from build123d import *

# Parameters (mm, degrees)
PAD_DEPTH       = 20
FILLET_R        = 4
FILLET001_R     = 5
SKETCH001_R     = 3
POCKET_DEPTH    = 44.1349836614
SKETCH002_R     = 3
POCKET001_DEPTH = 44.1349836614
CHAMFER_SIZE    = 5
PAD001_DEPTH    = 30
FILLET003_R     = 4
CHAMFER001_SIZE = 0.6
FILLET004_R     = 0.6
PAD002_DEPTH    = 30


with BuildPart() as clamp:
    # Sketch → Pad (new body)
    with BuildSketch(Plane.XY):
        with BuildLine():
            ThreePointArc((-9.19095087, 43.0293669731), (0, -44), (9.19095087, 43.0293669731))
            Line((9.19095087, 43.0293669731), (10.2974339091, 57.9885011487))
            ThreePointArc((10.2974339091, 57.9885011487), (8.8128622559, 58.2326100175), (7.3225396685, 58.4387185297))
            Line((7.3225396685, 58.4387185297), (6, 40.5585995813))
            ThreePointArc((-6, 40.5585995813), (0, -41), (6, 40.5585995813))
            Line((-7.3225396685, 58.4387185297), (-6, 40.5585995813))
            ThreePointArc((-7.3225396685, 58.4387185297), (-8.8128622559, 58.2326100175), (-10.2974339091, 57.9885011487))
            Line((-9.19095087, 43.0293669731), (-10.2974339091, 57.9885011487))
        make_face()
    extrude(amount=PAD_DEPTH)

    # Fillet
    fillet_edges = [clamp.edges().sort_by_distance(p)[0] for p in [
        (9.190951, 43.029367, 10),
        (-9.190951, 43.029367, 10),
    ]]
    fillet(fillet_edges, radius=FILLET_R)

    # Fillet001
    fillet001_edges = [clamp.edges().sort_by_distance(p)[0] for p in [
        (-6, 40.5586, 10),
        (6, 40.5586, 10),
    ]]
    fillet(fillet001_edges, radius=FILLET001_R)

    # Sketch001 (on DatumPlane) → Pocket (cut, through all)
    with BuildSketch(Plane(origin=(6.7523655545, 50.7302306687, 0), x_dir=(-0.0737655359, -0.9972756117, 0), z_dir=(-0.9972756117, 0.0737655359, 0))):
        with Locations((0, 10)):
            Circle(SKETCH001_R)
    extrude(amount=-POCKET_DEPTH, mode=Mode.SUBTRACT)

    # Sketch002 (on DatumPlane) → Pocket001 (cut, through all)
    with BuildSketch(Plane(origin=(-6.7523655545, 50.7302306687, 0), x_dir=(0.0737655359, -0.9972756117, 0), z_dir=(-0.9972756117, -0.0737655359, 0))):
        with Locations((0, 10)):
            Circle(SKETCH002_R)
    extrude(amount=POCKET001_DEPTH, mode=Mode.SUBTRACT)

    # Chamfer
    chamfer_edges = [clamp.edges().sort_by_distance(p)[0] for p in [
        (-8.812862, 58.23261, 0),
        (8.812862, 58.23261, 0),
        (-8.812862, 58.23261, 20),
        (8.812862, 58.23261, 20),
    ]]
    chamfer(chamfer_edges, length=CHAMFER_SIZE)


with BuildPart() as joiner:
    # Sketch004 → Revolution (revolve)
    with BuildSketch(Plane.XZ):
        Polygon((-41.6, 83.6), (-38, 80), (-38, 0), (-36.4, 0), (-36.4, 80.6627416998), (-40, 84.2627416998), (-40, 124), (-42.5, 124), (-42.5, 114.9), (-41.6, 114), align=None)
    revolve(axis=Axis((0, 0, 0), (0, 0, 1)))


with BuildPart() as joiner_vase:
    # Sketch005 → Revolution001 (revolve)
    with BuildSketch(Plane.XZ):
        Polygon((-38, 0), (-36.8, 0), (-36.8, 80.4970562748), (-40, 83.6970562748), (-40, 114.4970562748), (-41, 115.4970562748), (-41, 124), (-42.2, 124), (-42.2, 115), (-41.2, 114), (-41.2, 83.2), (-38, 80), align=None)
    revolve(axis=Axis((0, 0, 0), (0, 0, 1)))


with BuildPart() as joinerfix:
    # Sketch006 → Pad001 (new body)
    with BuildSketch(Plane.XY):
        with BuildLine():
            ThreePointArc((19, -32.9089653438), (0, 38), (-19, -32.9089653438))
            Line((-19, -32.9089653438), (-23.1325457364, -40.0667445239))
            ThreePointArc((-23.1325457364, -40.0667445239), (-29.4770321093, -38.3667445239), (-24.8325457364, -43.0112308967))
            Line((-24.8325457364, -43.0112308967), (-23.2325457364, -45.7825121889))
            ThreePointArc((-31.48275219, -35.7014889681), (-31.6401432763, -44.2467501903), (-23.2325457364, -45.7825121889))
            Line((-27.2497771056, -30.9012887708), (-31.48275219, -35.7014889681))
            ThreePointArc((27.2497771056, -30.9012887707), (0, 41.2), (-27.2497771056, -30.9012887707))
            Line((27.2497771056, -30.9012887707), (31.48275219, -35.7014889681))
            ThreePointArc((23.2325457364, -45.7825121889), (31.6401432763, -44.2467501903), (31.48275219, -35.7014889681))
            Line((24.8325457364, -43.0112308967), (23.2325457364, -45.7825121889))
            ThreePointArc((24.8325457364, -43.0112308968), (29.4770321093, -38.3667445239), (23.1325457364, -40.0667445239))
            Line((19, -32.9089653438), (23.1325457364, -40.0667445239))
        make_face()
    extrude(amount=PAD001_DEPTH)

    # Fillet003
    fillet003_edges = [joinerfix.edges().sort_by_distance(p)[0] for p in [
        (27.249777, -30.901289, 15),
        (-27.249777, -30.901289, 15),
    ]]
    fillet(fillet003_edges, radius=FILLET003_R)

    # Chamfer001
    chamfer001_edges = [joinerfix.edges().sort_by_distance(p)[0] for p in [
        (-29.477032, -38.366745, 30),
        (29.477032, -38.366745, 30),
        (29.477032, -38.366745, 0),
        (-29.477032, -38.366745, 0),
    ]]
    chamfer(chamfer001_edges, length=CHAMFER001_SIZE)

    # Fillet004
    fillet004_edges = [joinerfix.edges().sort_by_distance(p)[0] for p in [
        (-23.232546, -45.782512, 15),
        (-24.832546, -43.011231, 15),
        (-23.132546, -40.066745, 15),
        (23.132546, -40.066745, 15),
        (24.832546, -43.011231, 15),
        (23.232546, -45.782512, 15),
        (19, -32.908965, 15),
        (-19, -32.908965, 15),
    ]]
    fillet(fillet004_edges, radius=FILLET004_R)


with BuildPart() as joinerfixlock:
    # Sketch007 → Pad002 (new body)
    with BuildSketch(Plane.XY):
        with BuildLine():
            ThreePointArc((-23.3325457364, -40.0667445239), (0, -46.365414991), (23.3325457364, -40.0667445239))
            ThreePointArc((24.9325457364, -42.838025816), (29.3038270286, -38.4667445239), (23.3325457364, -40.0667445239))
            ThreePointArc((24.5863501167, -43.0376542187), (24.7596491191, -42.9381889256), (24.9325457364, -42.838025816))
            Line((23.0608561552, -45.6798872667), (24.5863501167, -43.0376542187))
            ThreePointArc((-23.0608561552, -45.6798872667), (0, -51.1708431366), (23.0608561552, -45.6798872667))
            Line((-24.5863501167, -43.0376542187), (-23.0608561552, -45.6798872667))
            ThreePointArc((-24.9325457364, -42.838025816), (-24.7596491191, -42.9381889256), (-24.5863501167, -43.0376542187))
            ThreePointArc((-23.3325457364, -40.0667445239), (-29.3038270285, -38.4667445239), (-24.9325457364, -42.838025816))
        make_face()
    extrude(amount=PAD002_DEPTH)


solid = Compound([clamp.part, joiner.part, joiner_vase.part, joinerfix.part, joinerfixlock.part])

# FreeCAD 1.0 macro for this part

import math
import FreeCAD as App
import Part
import Sketcher
Q = App.Units.Quantity


def edges_at(feature, points):
    """Names of the edges that pass closest to the given points."""
    edges = feature.Shape.Edges
    near = lambda p: min(range(len(edges)), key=lambda i: edges[i].distToShape(Part.Vertex(*p))[0])
    return sorted({f"Edge{near(p) + 1}" for p in points})

doc = App.newDocument("Part")
body = doc.addObject("PartDesign::Body", "Body")

sketch1 = body.newObject("Sketcher::SketchObject", "Sketch")
sketch1.AttachmentSupport = (doc.getObject("XY_Plane"), [""])
sketch1.MapMode = "FlatFace"
sketch1.addGeometry([
    Part.ArcOfCircle(Part.Circle(App.Vector(0, 0, 0), App.Vector(0, 0, 1), 44), math.radians(102.057033), math.radians(437.942967)),
    Part.LineSegment(App.Vector(9.190951, 43.029367, 0), App.Vector(10.297434, 57.988501, 0)),
    Part.ArcOfCircle(Part.Circle(App.Vector(0, 0, 0), App.Vector(0, 0, 1), 58.895699), math.radians(79.930544), math.radians(82.857898)),
    Part.LineSegment(App.Vector(7.32254, 58.438719, 0), App.Vector(6, 40.5586, 0)),
    Part.ArcOfCircle(Part.Circle(App.Vector(0, 0, 0), App.Vector(0, 0, 1), 41), math.radians(98.414968), math.radians(441.585032)),
    Part.LineSegment(App.Vector(-6, 40.5586, 0), App.Vector(-7.32254, 58.438719, 0)),
    Part.ArcOfCircle(Part.Circle(App.Vector(0, 0, 0), App.Vector(0, 0, 1), 58.895699), math.radians(97.142102), math.radians(100.069456)),
    Part.LineSegment(App.Vector(-10.297434, 57.988501, 0), App.Vector(-9.190951, 43.029367, 0)),
], False)
sketch1.addConstraint([
    Sketcher.Constraint("Coincident", 0, 2, 1, 1),
    Sketcher.Constraint("Coincident", 1, 2, 2, 1),
    Sketcher.Constraint("Coincident", 2, 2, 3, 1),
    Sketcher.Constraint("Coincident", 3, 2, 4, 2),
    Sketcher.Constraint("Coincident", 4, 1, 5, 1),
    Sketcher.Constraint("Coincident", 5, 2, 6, 1),
    Sketcher.Constraint("Coincident", 6, 2, 7, 1),
    Sketcher.Constraint("Coincident", 7, 2, 0, 1),
    Sketcher.Constraint("Coincident", 0, 3, -1, 1),
    Sketcher.Constraint("Coincident", 2, 3, -1, 1),
    Sketcher.Constraint("Coincident", 4, 3, -1, 1),
    Sketcher.Constraint("Coincident", 6, 3, -1, 1),
    Sketcher.Constraint("Equal", 2, 6),
    Sketcher.Constraint("Parallel", 1, 3),
    Sketcher.Constraint("Parallel", 5, 7),
    Sketcher.Constraint("Horizontal", 3, 2, 4, 1),
    Sketcher.Constraint("Horizontal", 2, 2, 5, 2),
    Sketcher.Constraint("Horizontal", 1, 2, 6, 2),
    Sketcher.Constraint("Radius", 0, Q("44 mm")),
    Sketcher.Constraint("Radius", 4, Q("41 mm")),
    Sketcher.Constraint("Distance", 1, Q("15 mm")),
    Sketcher.Constraint("DistanceX", -1, 1, 3, 2, Q("6 mm")),
    Sketcher.Constraint("Radius", 2, Q("58.895699 mm")),
    Sketcher.Constraint("DistanceY", -1, 1, 1, 2, Q("57.988501 mm")),
])
pad1 = body.newObject("PartDesign::Pad", "Pad")
pad1.Profile = sketch1
pad1.Length = 20
doc.recompute()

fillet = body.newObject("PartDesign::Fillet", "Fillet")
fillet.Base = (pad1, edges_at(pad1, [(9.191, 43.029, 10), (-9.191, 43.029, 10)]))
fillet.Radius = 4
doc.recompute()

fillet2 = body.newObject("PartDesign::Fillet", "Fillet001")
fillet2.Base = (fillet, edges_at(fillet, [(-6, 40.559, 10), (6, 40.559, 10)]))
fillet2.Radius = 5

sketch2 = body.newObject("Sketcher::SketchObject", "Sketch001")
sketch2.Placement = App.Placement(App.Vector(6.752366, 50.730231, 0), App.Rotation(App.Vector(-0.073765536, -0.997275612, 0), App.Vector(0, 0, 1.000000001), App.Vector(-0.997275612, 0.073765536, 0), "ZXY"))
sketch2.addGeometry(Part.Circle(App.Vector(0, 10, 0), App.Vector(0, 0, 1), 3), False)
sketch2.addConstraint([
    Sketcher.Constraint("PointOnObject", 0, 3, -2),
    Sketcher.Constraint("Diameter", 0, Q("6 mm")),
    Sketcher.Constraint("DistanceY", -1, 1, 0, 3, Q("10 mm")),
])
pocket1 = body.newObject("PartDesign::Pocket", "Pocket")
pocket1.Profile = sketch2
pocket1.Type = "ThroughAll"

sketch3 = body.newObject("Sketcher::SketchObject", "Sketch002")
sketch3.Placement = App.Placement(App.Vector(-6.752366, 50.730231, 0), App.Rotation(App.Vector(0.073765536, -0.997275612, 0), App.Vector(0, 0, 1.000000001), App.Vector(-0.997275612, -0.073765536, 0), "ZXY"))
sketch3.addGeometry(Part.Circle(App.Vector(0, 10, 0), App.Vector(0, 0, 1), 3), False)
sketch3.addConstraint([
    Sketcher.Constraint("PointOnObject", 0, 3, -2),
    Sketcher.Constraint("Diameter", 0, Q("6 mm")),
    Sketcher.Constraint("DistanceY", -1, 1, 0, 3, Q("10 mm")),
])
pocket2 = body.newObject("PartDesign::Pocket", "Pocket001")
pocket2.Profile = sketch3
pocket2.Type = "ThroughAll"
pocket2.Reversed = True
doc.recompute()

chamfer = body.newObject("PartDesign::Chamfer", "Chamfer")
chamfer.Base = (pocket2, edges_at(pocket2, [
    (-8.813, 58.233, 0),
    (8.813, 58.233, 0),
    (-8.813, 58.233, 20),
    (8.813, 58.233, 20),
]))
chamfer.Size = 5
body2 = doc.addObject("PartDesign::Body", "Body001")

sketch4 = body2.newObject("Sketcher::SketchObject", "Sketch003")
sketch4.AttachmentSupport = (doc.getObject("XZ_Plane001"), [""])
sketch4.MapMode = "FlatFace"
sketch4.addGeometry([
    Part.LineSegment(App.Vector(-41.6, 83.6, 0), App.Vector(-38, 80, 0)),
    Part.LineSegment(App.Vector(-38, 80, 0), App.Vector(-38, 0, 0)),
    Part.LineSegment(App.Vector(-38, 0, 0), App.Vector(-36.4, 0, 0)),
    Part.LineSegment(App.Vector(-36.4, 0, 0), App.Vector(-36.4, 80.662742, 0)),
    Part.LineSegment(App.Vector(-36.4, 80.662742, 0), App.Vector(-40, 84.262742, 0)),
    Part.LineSegment(App.Vector(-40, 84.262742, 0), App.Vector(-40, 124, 0)),
    Part.LineSegment(App.Vector(-40, 124, 0), App.Vector(-42.5, 124, 0)),
    Part.LineSegment(App.Vector(-42.5, 124, 0), App.Vector(-42.5, 114.9, 0)),
    Part.LineSegment(App.Vector(-42.5, 114.9, 0), App.Vector(-41.6, 114, 0)),
    Part.LineSegment(App.Vector(-41.6, 114, 0), App.Vector(-41.6, 83.6, 0)),
], False)
sketch4.addConstraint([
    Sketcher.Constraint("Coincident", 0, 2, 1, 1),
    Sketcher.Constraint("Coincident", 1, 2, 2, 1),
    Sketcher.Constraint("Coincident", 2, 2, 3, 1),
    Sketcher.Constraint("Coincident", 3, 2, 4, 1),
    Sketcher.Constraint("Coincident", 4, 2, 5, 1),
    Sketcher.Constraint("Coincident", 5, 2, 6, 1),
    Sketcher.Constraint("Coincident", 6, 2, 7, 1),
    Sketcher.Constraint("Coincident", 7, 2, 8, 1),
    Sketcher.Constraint("Coincident", 8, 2, 9, 1),
    Sketcher.Constraint("Coincident", 9, 2, 0, 1),
    Sketcher.Constraint("Vertical", 1),
    Sketcher.Constraint("Horizontal", 2),
    Sketcher.Constraint("Vertical", 3),
    Sketcher.Constraint("Vertical", 5),
    Sketcher.Constraint("Horizontal", 6),
    Sketcher.Constraint("Vertical", 7),
    Sketcher.Constraint("Vertical", 9),
    Sketcher.Constraint("PointOnObject", 1, 2, -1),
    Sketcher.Constraint("Parallel", 0, 4),
    Sketcher.Constraint("Parallel", 4, 8),
    Sketcher.Constraint("Equal", 0, 4),
    Sketcher.Constraint("DistanceY", 1, 2, 1, 1, Q("80 mm")),
    Sketcher.Constraint("Angle", 0, Q("-45 deg")),
    Sketcher.Constraint("DistanceX", 2, 1, 2, 2, Q("1.6 mm")),
    Sketcher.Constraint("DistanceX", 6, 2, 6, 1, Q("2.5 mm")),
    Sketcher.Constraint("DistanceY", 7, 2, 7, 1, Q("9.1 mm")),
    Sketcher.Constraint("DistanceY", 9, 2, 9, 1, Q("30.4 mm")),
    Sketcher.Constraint("DistanceX", 0, 2, -1, 1, Q("38 mm")),
    Sketcher.Constraint("DistanceX", 4, 2, -1, 1, Q("40 mm")),
    Sketcher.Constraint("DistanceY", 3, 1, 3, 2, Q("80.662742 mm")),
])
revolution = body2.newObject("PartDesign::Revolution", "Revolution")
revolution.Profile = sketch4
revolution.ReferenceAxis = (sketch4, ["V_Axis"])
revolution.Angle = 360
body3 = doc.addObject("PartDesign::Body", "Body002")

sketch5 = body3.newObject("Sketcher::SketchObject", "Sketch004")
sketch5.AttachmentSupport = (doc.getObject("XZ_Plane002"), [""])
sketch5.MapMode = "FlatFace"
sketch5.addGeometry([
    Part.LineSegment(App.Vector(-38, 0, 0), App.Vector(-36.8, 0, 0)),
    Part.LineSegment(App.Vector(-36.8, 0, 0), App.Vector(-36.8, 80.497056, 0)),
    Part.LineSegment(App.Vector(-36.8, 80.497056, 0), App.Vector(-40, 83.697056, 0)),
    Part.LineSegment(App.Vector(-40, 83.697056, 0), App.Vector(-40, 114.497056, 0)),
    Part.LineSegment(App.Vector(-40, 114.497056, 0), App.Vector(-41, 115.497056, 0)),
    Part.LineSegment(App.Vector(-41, 115.497056, 0), App.Vector(-41, 124, 0)),
    Part.LineSegment(App.Vector(-41, 124, 0), App.Vector(-42.2, 124, 0)),
    Part.LineSegment(App.Vector(-42.2, 124, 0), App.Vector(-42.2, 115, 0)),
    Part.LineSegment(App.Vector(-42.2, 115, 0), App.Vector(-41.2, 114, 0)),
    Part.LineSegment(App.Vector(-41.2, 114, 0), App.Vector(-41.2, 83.2, 0)),
    Part.LineSegment(App.Vector(-41.2, 83.2, 0), App.Vector(-38, 80, 0)),
    Part.LineSegment(App.Vector(-38, 80, 0), App.Vector(-38, 0, 0)),
], False)
sketch5.addConstraint([
    Sketcher.Constraint("Coincident", 0, 2, 1, 1),
    Sketcher.Constraint("Coincident", 1, 2, 2, 1),
    Sketcher.Constraint("Coincident", 2, 2, 3, 1),
    Sketcher.Constraint("Coincident", 3, 2, 4, 1),
    Sketcher.Constraint("Coincident", 4, 2, 5, 1),
    Sketcher.Constraint("Coincident", 5, 2, 6, 1),
    Sketcher.Constraint("Coincident", 6, 2, 7, 1),
    Sketcher.Constraint("Coincident", 7, 2, 8, 1),
    Sketcher.Constraint("Coincident", 8, 2, 9, 1),
    Sketcher.Constraint("Coincident", 9, 2, 10, 1),
    Sketcher.Constraint("Coincident", 10, 2, 11, 1),
    Sketcher.Constraint("Coincident", 11, 2, 0, 1),
    Sketcher.Constraint("Horizontal", 0),
    Sketcher.Constraint("Vertical", 1),
    Sketcher.Constraint("Vertical", 3),
    Sketcher.Constraint("Vertical", 5),
    Sketcher.Constraint("Horizontal", 6),
    Sketcher.Constraint("Vertical", 7),
    Sketcher.Constraint("Vertical", 9),
    Sketcher.Constraint("Vertical", 11),
    Sketcher.Constraint("PointOnObject", 0, 2, -1),
    Sketcher.Constraint("Parallel", 2, 4),
    Sketcher.Constraint("Parallel", 4, 8),
    Sketcher.Constraint("Parallel", 8, 10),
    Sketcher.Constraint("Equal", 0, 6),
    Sketcher.Constraint("Equal", 3, 9),
    Sketcher.Constraint("Equal", 4, 8),
    Sketcher.Constraint("DistanceY", 7, 2, 7, 1, Q("9 mm")),
    Sketcher.Constraint("DistanceY", 11, 2, 11, 1, Q("80 mm")),
    Sketcher.Constraint("Angle", 2, Q("135 deg")),
    Sketcher.Constraint("DistanceX", 0, 1, 0, 2, Q("1.2 mm")),
    Sketcher.Constraint("DistanceY", 3, 1, 3, 2, Q("30.8 mm")),
    Sketcher.Constraint("DistanceX", 2, 2, -1, 1, Q("40 mm")),
    Sketcher.Constraint("DistanceX", 4, 2, -1, 1, Q("41 mm")),
    Sketcher.Constraint("DistanceY", -1, 1, 5, 2, Q("124 mm")),
    Sketcher.Constraint("DistanceY", 1, 1, 1, 2, Q("80.497056 mm")),
])
revolution2 = body3.newObject("PartDesign::Revolution", "Revolution001")
revolution2.Profile = sketch5
revolution2.ReferenceAxis = (sketch5, ["V_Axis"])
revolution2.Angle = 360
body4 = doc.addObject("PartDesign::Body", "Body003")

sketch6 = body4.newObject("Sketcher::SketchObject", "Sketch005")
sketch6.AttachmentSupport = (doc.getObject("XY_Plane003"), [""])
sketch6.MapMode = "FlatFace"
sketch6.addGeometry([
    Part.ArcOfCircle(Part.Circle(App.Vector(0, 0, 0), App.Vector(0, 0, 1), 38), math.radians(-60), math.radians(240)),
    Part.LineSegment(App.Vector(19, -32.908965, 0), App.Vector(23.132546, -40.066745, 0)),
    Part.ArcOfCircle(Part.Circle(App.Vector(26.532546, -40.066745, 0), App.Vector(0, 0, 1), 3.4), math.radians(-120), math.radians(180)),
    Part.LineSegment(App.Vector(24.832546, -43.011231, 0), App.Vector(23.232546, -45.782512, 0)),
    Part.ArcOfCircle(Part.Circle(App.Vector(26.532546, -40.066745, 0), App.Vector(0, 0, 1), 6.6), math.radians(-120), math.radians(41.406912)),
    Part.LineSegment(App.Vector(31.482752, -35.701489, 0), App.Vector(27.249777, -30.901289, 0)),
    Part.ArcOfCircle(Part.Circle(App.Vector(0, 0, 0), App.Vector(0, 0, 1), 41.2), math.radians(-48.593088), math.radians(228.593088)),
    Part.LineSegment(App.Vector(-27.249777, -30.901289, 0), App.Vector(-31.482752, -35.701489, 0)),
    Part.ArcOfCircle(Part.Circle(App.Vector(-26.532546, -40.066745, 0), App.Vector(0, 0, 1), 6.6), math.radians(138.593088), math.radians(300)),
    Part.LineSegment(App.Vector(-23.232546, -45.782512, 0), App.Vector(-24.832546, -43.011231, 0)),
    Part.ArcOfCircle(Part.Circle(App.Vector(-26.532546, -40.066745, 0), App.Vector(0, 0, 1), 3.4), math.radians(0), math.radians(300)),
    Part.LineSegment(App.Vector(-23.132546, -40.066745, 0), App.Vector(-19, -32.908965, 0)),
], False)
sketch6.addConstraint([
    Sketcher.Constraint("Coincident", 0, 1, 1, 1),
    Sketcher.Constraint("Coincident", 1, 2, 2, 2),
    Sketcher.Constraint("Coincident", 2, 1, 3, 1),
    Sketcher.Constraint("Coincident", 3, 2, 4, 1),
    Sketcher.Constraint("Tangent", 4, 2, 5, 1),
    Sketcher.Constraint("Coincident", 5, 2, 6, 1),
    Sketcher.Constraint("Coincident", 6, 2, 7, 1),
    Sketcher.Constraint("Tangent", 7, 2, 8, 1),
    Sketcher.Constraint("Coincident", 8, 2, 9, 1),
    Sketcher.Constraint("Coincident", 9, 2, 10, 2),
    Sketcher.Constraint("Coincident", 10, 1, 11, 1),
    Sketcher.Constraint("Coincident", 11, 2, 0, 2),
    Sketcher.Constraint("Coincident", 0, 3, -1, 1),
    Sketcher.Constraint("Coincident", 6, 3, -1, 1),
    Sketcher.Constraint("Coincident", 4, 3, 2, 3),
    Sketcher.Constraint("Coincident", 10, 3, 8, 3),
    Sketcher.Constraint("Equal", 4, 8),
    Sketcher.Constraint("Equal", 2, 10),
    Sketcher.Constraint("Symmetric", 2, 3, 8, 3, -2),
    Sketcher.Constraint("Parallel", 1, 9),
    Sketcher.Constraint("Parallel", 3, 11),
    Sketcher.Constraint("Horizontal", 10, 3, 1, 2),
    Sketcher.Constraint("Horizontal", 5, 2, 6, 2),
    Sketcher.Constraint("Horizontal", 3, 2, 8, 2),
    Sketcher.Constraint("Horizontal", 2, 1, 9, 2),
    Sketcher.Constraint("Horizontal", 1, 2, 10, 1),
    Sketcher.Constraint("Radius", 0, Q("38 mm")),
    Sketcher.Constraint("Radius", 2, Q("3.4 mm")),
    Sketcher.Constraint("Radius", 4, Q("6.6 mm")),
    Sketcher.Constraint("Radius", 6, Q("41.2 mm")),
    Sketcher.Constraint("Angle", 1, Q("-60 deg")),
    Sketcher.Constraint("DistanceX", -1, 1, 0, 1, Q("19 mm")),
    Sketcher.Constraint("Distance", 5, Q("6.4 mm")),
    Sketcher.Constraint("DistanceX", 2, 1, 2, 3, Q("1.7 mm")),
    Sketcher.Constraint("DistanceY", 4, 2, 5, 2, Q("4.8002 mm")),
])
pad2 = body4.newObject("PartDesign::Pad", "Pad001")
pad2.Profile = sketch6
pad2.Length = 30
doc.recompute()

fillet3 = body4.newObject("PartDesign::Fillet", "Fillet002")
fillet3.Base = (pad2, edges_at(pad2, [(27.25, -30.901, 15), (-27.25, -30.901, 15)]))
fillet3.Radius = 4
doc.recompute()

chamfer2 = body4.newObject("PartDesign::Chamfer", "Chamfer001")
chamfer2.Base = (fillet3, edges_at(fillet3, [
    (-29.477, -38.367, 30),
    (29.477, -38.367, 30),
    (29.477, -38.367, 0),
    (-29.477, -38.367, 0),
]))
chamfer2.Size = 0.6
doc.recompute()

fillet4 = body4.newObject("PartDesign::Fillet", "Fillet003")
fillet4.Base = (chamfer2, edges_at(chamfer2, [
    (-23.233, -45.783, 15),
    (-24.833, -43.011, 15),
    (-23.133, -40.067, 15),
    (23.133, -40.067, 15),
    (24.833, -43.011, 15),
    (23.233, -45.783, 15),
    (19, -32.909, 15),
    (-19, -32.909, 15),
]))
fillet4.Radius = 0.6
body5 = doc.addObject("PartDesign::Body", "Body004")

sketch7 = body5.newObject("Sketcher::SketchObject", "Sketch006")
sketch7.AttachmentSupport = (doc.getObject("XY_Plane004"), [""])
sketch7.MapMode = "FlatFace"
sketch7.addGeometry([
    Part.ArcOfCircle(Part.Circle(App.Vector(0, 0, 0), App.Vector(0, 0, 1), 46.365415), math.radians(-120.214038), math.radians(-59.785962)),
    Part.ArcOfCircle(Part.Circle(App.Vector(-26.532546, -40.066745, 0), App.Vector(0, 0, 1), 3.2), math.radians(0), math.radians(300)),
    Part.ArcOfCircle(Part.Circle(App.Vector(-0.000001, -0.000002, 0), App.Vector(0, 0, 1), 49.565392), math.radians(-120.200219), math.radians(-119.738262)),
    Part.LineSegment(App.Vector(-24.58635, -43.037654, 0), App.Vector(-23.060856, -45.679887, 0)),
    Part.ArcOfCircle(Part.Circle(App.Vector(0, 0, 0), App.Vector(0, 0, 1), 51.170843), math.radians(-116.786293), math.radians(-63.213707)),
    Part.LineSegment(App.Vector(23.060856, -45.679887, 0), App.Vector(24.58635, -43.037654, 0)),
    Part.ArcOfCircle(Part.Circle(App.Vector(0.000001, -0.000002, 0), App.Vector(0, 0, 1), 49.565392), math.radians(-60.261738), math.radians(-59.799781)),
    Part.ArcOfCircle(Part.Circle(App.Vector(26.532546, -40.066745, 0), App.Vector(0, 0, 1), 3.2), math.radians(-120), math.radians(180)),
], False)
sketch7.addConstraint([
    Sketcher.Constraint("Coincident", 0, 1, 1, 1),
    Sketcher.Constraint("Coincident", 1, 2, 2, 1),
    Sketcher.Constraint("Coincident", 2, 2, 3, 1),
    Sketcher.Constraint("Coincident", 3, 2, 4, 1),
    Sketcher.Constraint("Coincident", 4, 2, 5, 1),
    Sketcher.Constraint("Coincident", 5, 2, 6, 1),
    Sketcher.Constraint("Coincident", 6, 2, 7, 1),
    Sketcher.Constraint("Coincident", 7, 2, 0, 2),
    Sketcher.Constraint("Coincident", 0, 3, -1, 1),
    Sketcher.Constraint("Coincident", 2, 3, -1, 1),
    Sketcher.Constraint("Coincident", 4, 3, -1, 1),
    Sketcher.Constraint("Coincident", 6, 3, -1, 1),
    Sketcher.Constraint("Equal", 2, 6),
    Sketcher.Constraint("Equal", 1, 7),
    Sketcher.Constraint("Symmetric", 1, 3, 7, 3, -2),
    Sketcher.Constraint("Horizontal", 7, 3, 0, 1),
    Sketcher.Constraint("Horizontal", 3, 2, 4, 2),
    Sketcher.Constraint("Horizontal", 2, 2, 5, 2),
    Sketcher.Constraint("Radius", 1, Q("3.2 mm")),
    Sketcher.Constraint("Angle", 3, Q("-60 deg")),
    Sketcher.Constraint("DistanceX", 1, 2, 0, 1, Q("1.6 mm")),
    Sketcher.Constraint("Radius", 2, Q("49.565392 mm")),
    Sketcher.Constraint("Radius", 4, Q("51.170843 mm")),
    Sketcher.Constraint("DistanceX", 3, 2, 7, 3, Q("49.593402 mm")),
    Sketcher.Constraint("DistanceX", 2, 2, 5, 2, Q("49.1727 mm")),
])
pad3 = body5.newObject("PartDesign::Pad", "Pad002")
pad3.Profile = sketch7
pad3.Length = 30

doc.recompute()
